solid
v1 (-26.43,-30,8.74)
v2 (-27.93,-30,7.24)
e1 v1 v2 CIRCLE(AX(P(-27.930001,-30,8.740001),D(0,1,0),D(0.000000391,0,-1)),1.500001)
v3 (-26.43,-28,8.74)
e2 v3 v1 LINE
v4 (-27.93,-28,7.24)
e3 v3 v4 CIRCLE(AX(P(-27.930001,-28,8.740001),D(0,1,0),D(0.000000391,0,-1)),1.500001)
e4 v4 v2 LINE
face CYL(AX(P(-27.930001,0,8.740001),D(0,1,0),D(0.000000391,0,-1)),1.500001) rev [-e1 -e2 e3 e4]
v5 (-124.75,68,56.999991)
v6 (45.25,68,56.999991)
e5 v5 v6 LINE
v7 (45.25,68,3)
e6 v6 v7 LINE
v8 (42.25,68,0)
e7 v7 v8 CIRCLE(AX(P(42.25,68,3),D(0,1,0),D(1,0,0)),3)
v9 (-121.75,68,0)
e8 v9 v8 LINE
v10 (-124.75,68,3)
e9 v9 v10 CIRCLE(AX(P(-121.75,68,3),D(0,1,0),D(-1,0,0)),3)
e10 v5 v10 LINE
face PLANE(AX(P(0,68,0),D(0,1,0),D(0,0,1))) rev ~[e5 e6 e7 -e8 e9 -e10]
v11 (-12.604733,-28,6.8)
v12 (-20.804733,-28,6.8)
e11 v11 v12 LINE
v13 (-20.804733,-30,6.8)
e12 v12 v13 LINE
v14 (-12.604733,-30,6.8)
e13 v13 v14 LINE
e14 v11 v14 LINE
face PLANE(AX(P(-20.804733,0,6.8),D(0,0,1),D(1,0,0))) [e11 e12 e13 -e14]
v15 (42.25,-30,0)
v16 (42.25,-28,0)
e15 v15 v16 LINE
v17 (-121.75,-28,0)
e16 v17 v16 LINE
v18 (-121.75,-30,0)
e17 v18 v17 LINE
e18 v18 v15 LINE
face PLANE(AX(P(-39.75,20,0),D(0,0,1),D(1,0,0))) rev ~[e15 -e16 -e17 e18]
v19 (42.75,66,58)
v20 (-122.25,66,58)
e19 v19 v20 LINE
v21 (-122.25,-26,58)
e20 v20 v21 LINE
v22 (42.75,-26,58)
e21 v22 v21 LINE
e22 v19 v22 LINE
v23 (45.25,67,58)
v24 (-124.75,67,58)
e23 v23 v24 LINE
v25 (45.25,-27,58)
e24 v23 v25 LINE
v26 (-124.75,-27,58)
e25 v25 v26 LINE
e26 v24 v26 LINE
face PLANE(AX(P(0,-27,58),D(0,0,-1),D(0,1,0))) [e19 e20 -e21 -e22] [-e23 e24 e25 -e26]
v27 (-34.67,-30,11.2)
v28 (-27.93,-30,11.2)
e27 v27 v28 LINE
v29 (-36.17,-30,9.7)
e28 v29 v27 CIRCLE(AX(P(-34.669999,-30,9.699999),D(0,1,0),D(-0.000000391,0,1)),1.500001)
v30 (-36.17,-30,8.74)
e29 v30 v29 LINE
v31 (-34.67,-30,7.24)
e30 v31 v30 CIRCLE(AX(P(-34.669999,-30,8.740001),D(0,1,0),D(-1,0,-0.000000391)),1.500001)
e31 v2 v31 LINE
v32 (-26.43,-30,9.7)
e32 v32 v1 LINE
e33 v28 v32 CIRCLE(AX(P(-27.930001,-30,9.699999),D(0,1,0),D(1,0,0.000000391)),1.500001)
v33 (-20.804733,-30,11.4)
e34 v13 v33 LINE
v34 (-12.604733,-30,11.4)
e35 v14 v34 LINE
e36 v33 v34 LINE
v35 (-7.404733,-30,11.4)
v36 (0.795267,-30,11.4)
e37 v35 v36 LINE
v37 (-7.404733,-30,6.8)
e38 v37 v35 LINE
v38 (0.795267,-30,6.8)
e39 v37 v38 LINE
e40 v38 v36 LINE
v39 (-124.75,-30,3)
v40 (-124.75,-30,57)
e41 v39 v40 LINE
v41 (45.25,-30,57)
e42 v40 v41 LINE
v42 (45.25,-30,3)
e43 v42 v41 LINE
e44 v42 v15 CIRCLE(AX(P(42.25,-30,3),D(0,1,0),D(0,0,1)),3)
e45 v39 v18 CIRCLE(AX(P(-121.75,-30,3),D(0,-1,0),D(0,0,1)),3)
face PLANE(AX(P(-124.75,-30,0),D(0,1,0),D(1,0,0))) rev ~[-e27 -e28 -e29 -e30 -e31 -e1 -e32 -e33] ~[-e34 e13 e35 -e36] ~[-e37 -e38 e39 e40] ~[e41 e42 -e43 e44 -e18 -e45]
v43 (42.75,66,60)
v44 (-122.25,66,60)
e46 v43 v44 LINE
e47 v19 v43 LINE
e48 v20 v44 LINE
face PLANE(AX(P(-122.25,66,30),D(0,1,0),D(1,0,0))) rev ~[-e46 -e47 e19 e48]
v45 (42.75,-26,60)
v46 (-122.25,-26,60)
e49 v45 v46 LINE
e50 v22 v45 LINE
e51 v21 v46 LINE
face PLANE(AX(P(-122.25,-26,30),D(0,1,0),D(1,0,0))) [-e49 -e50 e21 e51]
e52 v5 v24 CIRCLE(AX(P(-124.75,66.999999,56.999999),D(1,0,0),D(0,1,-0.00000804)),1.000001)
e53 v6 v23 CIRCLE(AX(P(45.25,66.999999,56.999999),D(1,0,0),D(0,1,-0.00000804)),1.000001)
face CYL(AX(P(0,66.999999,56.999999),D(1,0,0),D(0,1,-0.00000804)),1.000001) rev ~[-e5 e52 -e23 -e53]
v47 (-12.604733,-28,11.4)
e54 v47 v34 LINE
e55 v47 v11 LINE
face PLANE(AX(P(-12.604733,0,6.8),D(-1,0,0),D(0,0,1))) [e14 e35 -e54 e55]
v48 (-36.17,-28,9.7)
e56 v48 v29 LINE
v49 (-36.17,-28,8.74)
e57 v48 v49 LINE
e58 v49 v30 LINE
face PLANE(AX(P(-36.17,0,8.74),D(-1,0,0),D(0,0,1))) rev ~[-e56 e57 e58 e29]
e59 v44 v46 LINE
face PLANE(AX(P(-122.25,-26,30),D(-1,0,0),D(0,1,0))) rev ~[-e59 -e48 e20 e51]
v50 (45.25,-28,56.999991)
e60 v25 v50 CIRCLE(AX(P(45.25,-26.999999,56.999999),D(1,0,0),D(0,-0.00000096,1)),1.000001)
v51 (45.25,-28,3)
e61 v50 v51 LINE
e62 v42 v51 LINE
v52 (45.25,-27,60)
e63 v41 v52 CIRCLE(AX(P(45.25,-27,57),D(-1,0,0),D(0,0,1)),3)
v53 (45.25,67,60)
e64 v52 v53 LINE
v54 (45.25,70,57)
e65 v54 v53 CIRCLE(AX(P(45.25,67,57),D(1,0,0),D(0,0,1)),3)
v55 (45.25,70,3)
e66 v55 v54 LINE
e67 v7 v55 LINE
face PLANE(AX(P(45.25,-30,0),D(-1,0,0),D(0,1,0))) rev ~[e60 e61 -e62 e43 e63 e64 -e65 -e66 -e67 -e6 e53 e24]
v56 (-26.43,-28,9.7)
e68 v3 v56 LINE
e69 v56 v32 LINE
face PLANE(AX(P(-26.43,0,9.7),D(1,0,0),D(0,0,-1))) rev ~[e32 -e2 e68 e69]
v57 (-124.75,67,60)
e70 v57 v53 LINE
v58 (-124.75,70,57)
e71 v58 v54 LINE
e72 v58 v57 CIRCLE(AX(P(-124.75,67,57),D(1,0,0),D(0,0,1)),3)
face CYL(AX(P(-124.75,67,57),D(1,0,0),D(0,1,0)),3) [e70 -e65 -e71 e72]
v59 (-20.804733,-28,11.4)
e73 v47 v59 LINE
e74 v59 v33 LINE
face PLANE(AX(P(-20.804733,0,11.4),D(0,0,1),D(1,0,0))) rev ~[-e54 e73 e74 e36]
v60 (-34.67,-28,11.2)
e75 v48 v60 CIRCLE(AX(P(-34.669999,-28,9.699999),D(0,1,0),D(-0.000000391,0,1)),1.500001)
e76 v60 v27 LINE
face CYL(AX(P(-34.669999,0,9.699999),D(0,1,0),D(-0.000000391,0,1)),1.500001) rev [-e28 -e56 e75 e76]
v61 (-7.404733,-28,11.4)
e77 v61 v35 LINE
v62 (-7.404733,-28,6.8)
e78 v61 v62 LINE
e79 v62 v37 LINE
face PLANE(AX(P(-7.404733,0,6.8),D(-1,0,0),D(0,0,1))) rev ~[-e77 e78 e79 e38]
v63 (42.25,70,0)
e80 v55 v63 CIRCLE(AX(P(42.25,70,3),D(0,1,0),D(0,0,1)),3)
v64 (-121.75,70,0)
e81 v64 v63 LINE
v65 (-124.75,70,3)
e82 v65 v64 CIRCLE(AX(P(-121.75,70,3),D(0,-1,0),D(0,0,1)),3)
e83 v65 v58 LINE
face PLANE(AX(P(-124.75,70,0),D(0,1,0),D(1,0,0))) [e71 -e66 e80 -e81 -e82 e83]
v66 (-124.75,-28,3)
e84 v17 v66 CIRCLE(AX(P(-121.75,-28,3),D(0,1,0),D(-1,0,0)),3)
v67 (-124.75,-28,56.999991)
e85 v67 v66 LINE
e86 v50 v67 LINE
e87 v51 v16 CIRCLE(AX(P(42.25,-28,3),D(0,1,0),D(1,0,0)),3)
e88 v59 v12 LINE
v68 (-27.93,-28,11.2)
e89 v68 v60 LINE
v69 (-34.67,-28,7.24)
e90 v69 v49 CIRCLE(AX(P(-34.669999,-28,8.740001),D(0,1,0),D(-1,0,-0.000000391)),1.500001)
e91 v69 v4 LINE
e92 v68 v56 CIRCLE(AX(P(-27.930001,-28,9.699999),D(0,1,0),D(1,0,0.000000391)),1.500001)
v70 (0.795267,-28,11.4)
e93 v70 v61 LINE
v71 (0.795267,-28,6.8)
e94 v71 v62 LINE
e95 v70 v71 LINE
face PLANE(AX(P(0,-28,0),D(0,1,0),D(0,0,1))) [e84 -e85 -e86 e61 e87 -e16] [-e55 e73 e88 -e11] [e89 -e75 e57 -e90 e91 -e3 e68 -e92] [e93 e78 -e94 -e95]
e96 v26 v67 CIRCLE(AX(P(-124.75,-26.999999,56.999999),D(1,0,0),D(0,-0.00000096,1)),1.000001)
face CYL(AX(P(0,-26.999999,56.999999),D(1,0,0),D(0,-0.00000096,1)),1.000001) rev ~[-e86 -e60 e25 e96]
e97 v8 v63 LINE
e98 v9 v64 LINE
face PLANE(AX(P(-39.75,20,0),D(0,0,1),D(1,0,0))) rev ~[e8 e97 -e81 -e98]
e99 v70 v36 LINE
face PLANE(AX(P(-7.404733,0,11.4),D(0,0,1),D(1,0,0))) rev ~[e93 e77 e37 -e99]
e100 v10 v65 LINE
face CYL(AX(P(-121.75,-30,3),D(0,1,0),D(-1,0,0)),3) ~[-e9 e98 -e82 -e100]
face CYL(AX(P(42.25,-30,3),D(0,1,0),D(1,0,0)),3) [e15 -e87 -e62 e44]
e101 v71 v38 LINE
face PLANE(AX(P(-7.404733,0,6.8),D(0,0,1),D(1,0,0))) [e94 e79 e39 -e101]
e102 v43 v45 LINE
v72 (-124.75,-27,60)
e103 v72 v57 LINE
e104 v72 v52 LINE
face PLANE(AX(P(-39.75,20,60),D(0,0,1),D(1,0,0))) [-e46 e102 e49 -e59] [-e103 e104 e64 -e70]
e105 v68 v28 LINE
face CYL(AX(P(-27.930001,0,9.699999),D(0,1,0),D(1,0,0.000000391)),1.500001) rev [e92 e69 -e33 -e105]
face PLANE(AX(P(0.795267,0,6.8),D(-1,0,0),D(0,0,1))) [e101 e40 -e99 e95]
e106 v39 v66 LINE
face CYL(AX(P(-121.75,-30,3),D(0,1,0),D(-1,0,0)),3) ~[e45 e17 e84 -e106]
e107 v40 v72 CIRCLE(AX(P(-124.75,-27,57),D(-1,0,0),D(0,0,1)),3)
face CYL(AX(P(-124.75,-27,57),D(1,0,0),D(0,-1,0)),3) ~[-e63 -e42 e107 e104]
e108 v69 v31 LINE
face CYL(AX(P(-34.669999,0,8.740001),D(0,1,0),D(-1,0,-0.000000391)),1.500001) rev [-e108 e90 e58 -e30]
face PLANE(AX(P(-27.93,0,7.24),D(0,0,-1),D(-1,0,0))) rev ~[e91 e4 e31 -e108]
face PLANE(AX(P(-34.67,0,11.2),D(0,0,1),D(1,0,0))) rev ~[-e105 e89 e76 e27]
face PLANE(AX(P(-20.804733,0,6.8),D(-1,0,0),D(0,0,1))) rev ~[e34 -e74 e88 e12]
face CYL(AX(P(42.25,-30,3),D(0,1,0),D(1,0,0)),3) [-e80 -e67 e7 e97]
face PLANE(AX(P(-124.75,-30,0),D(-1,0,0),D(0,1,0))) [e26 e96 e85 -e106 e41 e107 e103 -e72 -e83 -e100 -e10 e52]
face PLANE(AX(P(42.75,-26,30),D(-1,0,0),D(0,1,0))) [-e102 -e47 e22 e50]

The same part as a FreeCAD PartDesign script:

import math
import FreeCAD as App
import Part
import Sketcher
from FreeCAD import Vector


def edges_at(feature, points):
    """Names of the edges that pass closest to the given points."""
    edges = feature.Shape.Edges
    near = lambda p: min(range(len(edges)), key=lambda i: edges[i].distToShape(Part.Vertex(*p))[0])
    return sorted({f"Edge{near(p) + 1}" for p in points})

doc = App.newDocument("Part")
body = doc.addObject("PartDesign::Body", "Body")

sketch1 = body.newObject("Sketcher::SketchObject", "Sketch")
sketch1.AttachmentSupport = (doc.getObject("YZ_Plane"), [""])
sketch1.MapMode = "FlatFace"
sketch1.addGeometry([
    Part.LineSegment(Vector(-28, 57, 0), Vector(-28, 0, 0)),
    Part.LineSegment(Vector(-28, 0, 0), Vector(68, 0, 0)),
    Part.LineSegment(Vector(68, 0, 0), Vector(68, 57, 0)),
    Part.ArcOfCircle(Part.Circle(Vector(67, 57, 0), Vector(0, 0, 1), 1), math.radians(0), math.radians(90)),
    Part.LineSegment(Vector(67, 58, 0), Vector(-27, 58, 0)),
    Part.ArcOfCircle(Part.Circle(Vector(-27, 57, 0), Vector(0, 0, 1), 1), math.radians(90), math.radians(180)),
], False)
sketch1.addConstraint([
    Sketcher.Constraint("Coincident", 0, 2, 1, 1),
    Sketcher.Constraint("Coincident", 1, 2, 2, 1),
    Sketcher.Constraint("Coincident", 2, 2, 3, 1),
    Sketcher.Constraint("Tangent", 3, 2, 4, 1),
    Sketcher.Constraint("Tangent", 4, 2, 5, 1),
    Sketcher.Constraint("Coincident", 5, 2, 0, 1),
    Sketcher.Constraint("Vertical", 0),
    Sketcher.Constraint("Horizontal", 1),
    Sketcher.Constraint("Vertical", 2),
    Sketcher.Constraint("Horizontal", 4),
    Sketcher.Constraint("Equal", 3, 5),
    Sketcher.Constraint("PointOnObject", 0, 2, -1),
    Sketcher.Constraint("Horizontal", 2, 2, 5, 2),
    Sketcher.Constraint("Radius", 3, 1.000001),
    Sketcher.Constraint("DistanceX", 1, 1, 1, 2, 96.0),
    Sketcher.Constraint("DistanceX", -1, 1, 3, 3, 66.999999),
    Sketcher.Constraint("DistanceY", -1, 1, 3, 3, 56.999999),
    Sketcher.Constraint("DistanceY", 0, 2, 0, 1, 56.999991),
])
pad1 = body.newObject("PartDesign::Pad", "Pad")
pad1.Profile = sketch1
pad1.Length = 500
pad1.Midplane = True
body2 = doc.addObject("PartDesign::Body", "Body001")

sketch2 = body2.newObject("Sketcher::SketchObject", "Sketch001")
sketch2.AttachmentSupport = (doc.getObject("XY_Plane001"), [""])
sketch2.MapMode = "FlatFace"
sketch2.addGeometry([
    Part.LineSegment(Vector(-125, 70, 0), Vector(-125, -30, 0)),
    Part.LineSegment(Vector(-125, -30, 0), Vector(45, -30, 0)),
    Part.LineSegment(Vector(45, -30, 0), Vector(45, 70, 0)),
    Part.LineSegment(Vector(45, 70, 0), Vector(-125, 70, 0)),
], False)
sketch2.addConstraint([
    Sketcher.Constraint("Coincident", 0, 2, 1, 1),
    Sketcher.Constraint("Coincident", 1, 2, 2, 1),
    Sketcher.Constraint("Coincident", 2, 2, 3, 1),
    Sketcher.Constraint("Coincident", 3, 2, 0, 1),
    Sketcher.Constraint("Vertical", 0),
    Sketcher.Constraint("Horizontal", 1),
    Sketcher.Constraint("Vertical", 2),
    Sketcher.Constraint("Horizontal", 3),
    Sketcher.Constraint("DistanceX", 1, 1, 1, 2, 170.0),
    Sketcher.Constraint("DistanceY", 0, 2, 0, 1, 100.0),
    Sketcher.Constraint("DistanceY", 0, 2, -1, 1, 30.0),
    Sketcher.Constraint("DistanceX", 0, 2, -1, 1, 124.75),
])
pad2 = body2.newObject("PartDesign::Pad", "Pad001")
pad2.Profile = sketch2
pad2.Length = 60
doc.recompute()

fillet = body2.newObject("PartDesign::Fillet", "Fillet")
fillet.Base = (pad2, edges_at(pad2, [
    (45.25, 20, 0),
    (-39.75, -30, 60),
    (-39.75, 70, 60),
    (-124.75, 20, 0),
]))
fillet.Radius = 3

sketch3 = body2.newObject("Sketcher::SketchObject", "Sketch002")
sketch3.AttachmentSupport = (doc.getObject("YZ_Plane001"), [""])
sketch3.MapMode = "FlatFace"
sketch3.addGeometry([
    Part.LineSegment(Vector(-26, 22, 0), Vector(-26, 8, 0)),
    Part.LineSegment(Vector(-26, 8, 0), Vector(-9, 8, 0)),
    Part.LineSegment(Vector(-9, 8, 0), Vector(-9, 22, 0)),
    Part.LineSegment(Vector(-9, 22, 0), Vector(-26, 22, 0)),
    Part.LineSegment(Vector(-7, 24, 0), Vector(-7, 8, 0)),
    Part.LineSegment(Vector(-7, 8, 0), Vector(9, 8, 0)),
    Part.LineSegment(Vector(9, 8, 0), Vector(9, 24, 0)),
    Part.LineSegment(Vector(9, 24, 0), Vector(-7, 24, 0)),
    Part.LineSegment(Vector(11, 24, 0), Vector(11, 8, 0)),
    Part.LineSegment(Vector(11, 8, 0), Vector(27, 8, 0)),
    Part.LineSegment(Vector(27, 8, 0), Vector(27, 24, 0)),
    Part.LineSegment(Vector(27, 24, 0), Vector(11, 24, 0)),
], False)
sketch3.addConstraint([
    Sketcher.Constraint("Coincident", 0, 2, 1, 1),
    Sketcher.Constraint("Coincident", 1, 2, 2, 1),
    Sketcher.Constraint("Coincident", 2, 2, 3, 1),
    Sketcher.Constraint("Coincident", 3, 2, 0, 1),
    Sketcher.Constraint("Coincident", 4, 2, 5, 1),
    Sketcher.Constraint("Coincident", 5, 2, 6, 1),
    Sketcher.Constraint("Coincident", 6, 2, 7, 1),
    Sketcher.Constraint("Coincident", 7, 2, 4, 1),
    Sketcher.Constraint("Coincident", 8, 2, 9, 1),
    Sketcher.Constraint("Coincident", 9, 2, 10, 1),
    Sketcher.Constraint("Coincident", 10, 2, 11, 1),
    Sketcher.Constraint("Coincident", 11, 2, 8, 1),
    Sketcher.Constraint("Vertical", 0),
    Sketcher.Constraint("Horizontal", 1),
    Sketcher.Constraint("Vertical", 2),
    Sketcher.Constraint("Horizontal", 3),
    Sketcher.Constraint("Vertical", 4),
    Sketcher.Constraint("Horizontal", 5),
    Sketcher.Constraint("Vertical", 6),
    Sketcher.Constraint("Horizontal", 7),
    Sketcher.Constraint("Vertical", 8),
    Sketcher.Constraint("Horizontal", 9),
    Sketcher.Constraint("Vertical", 10),
    Sketcher.Constraint("Horizontal", 11),
    Sketcher.Constraint("Horizontal", 5, 2, 8, 2),
    Sketcher.Constraint("Horizontal", 7, 2, 10, 2),
    Sketcher.Constraint("Equal", 7, 9),
    Sketcher.Constraint("DistanceX", 1, 1, 1, 2, 17.0),
    Sketcher.Constraint("DistanceX", 5, 1, 5, 2, 15.6),
    Sketcher.Constraint("DistanceY", 0, 2, 0, 1, 14.3),
    Sketcher.Constraint("DistanceY", 4, 2, 4, 1, 16.5),
    Sketcher.Constraint("DistanceX", 0, 2, -1, 1, 26.3),
    Sketcher.Constraint("DistanceY", -1, 1, 0, 2, 7.6),
    Sketcher.Constraint("DistanceX", -1, 1, 8, 2, 11.2),
    Sketcher.Constraint("DistanceX", 4, 2, -1, 1, 6.75),
    Sketcher.Constraint("DistanceY", -1, 1, 4, 2, 7.95),
])
pocket1 = body2.newObject("PartDesign::Pocket", "Pocket")
pocket1.Profile = sketch3
pocket1.Type = "ThroughAll"
pocket1.Reversed = True

sketch4 = body2.newObject("Sketcher::SketchObject", "Sketch003")
sketch4.AttachmentSupport = (doc.getObject("XZ_Plane001"), [""])
sketch4.MapMode = "FlatFace"
sketch4.addGeometry([
    Part.ArcOfCircle(Part.Circle(Vector(-34.7, 9.7, 0), Vector(0, 0, 1), 1.5), math.radians(90), math.radians(180)),
    Part.LineSegment(Vector(-36.2, 9.7, 0), Vector(-36.2, 8.7, 0)),
    Part.ArcOfCircle(Part.Circle(Vector(-34.7, 8.7, 0), Vector(0, 0, 1), 1.5), math.radians(-180), math.radians(-90)),
    Part.LineSegment(Vector(-34.7, 7.2, 0), Vector(-27.9, 7.2, 0)),
    Part.ArcOfCircle(Part.Circle(Vector(-27.9, 8.7, 0), Vector(0, 0, 1), 1.5), math.radians(-90), math.radians(0)),
    Part.LineSegment(Vector(-26.4, 8.7, 0), Vector(-26.4, 9.7, 0)),
    Part.ArcOfCircle(Part.Circle(Vector(-27.9, 9.7, 0), Vector(0, 0, 1), 1.5), math.radians(0), math.radians(90)),
    Part.LineSegment(Vector(-27.9, 11.2, 0), Vector(-34.7, 11.2, 0)),
    Part.LineSegment(Vector(-20.8, 11.4, 0), Vector(-20.8, 6.8, 0)),
    Part.LineSegment(Vector(-20.8, 6.8, 0), Vector(-12.6, 6.8, 0)),
    Part.LineSegment(Vector(-12.6, 6.8, 0), Vector(-12.6, 11.4, 0)),
    Part.LineSegment(Vector(-12.6, 11.4, 0), Vector(-20.8, 11.4, 0)),
    Part.LineSegment(Vector(-7.4, 11.4, 0), Vector(-7.4, 6.8, 0)),
    Part.LineSegment(Vector(-7.4, 6.8, 0), Vector(0.8, 6.8, 0)),
    Part.LineSegment(Vector(0.8, 6.8, 0), Vector(0.8, 11.4, 0)),
    Part.LineSegment(Vector(0.8, 11.4, 0), Vector(-7.4, 11.4, 0)),
], False)
sketch4.addConstraint([
    Sketcher.Constraint("Tangent", 0, 2, 1, 1),
    Sketcher.Constraint("Tangent", 1, 2, 2, 1),
    Sketcher.Constraint("Tangent", 2, 2, 3, 1),
    Sketcher.Constraint("Tangent", 3, 2, 4, 1),
    Sketcher.Constraint("Tangent", 4, 2, 5, 1),
    Sketcher.Constraint("Tangent", 5, 2, 6, 1),
    Sketcher.Constraint("Tangent", 6, 2, 7, 1),
    Sketcher.Constraint("Tangent", 7, 2, 0, 1),
    Sketcher.Constraint("Coincident", 8, 2, 9, 1),
    Sketcher.Constraint("Coincident", 9, 2, 10, 1),
    Sketcher.Constraint("Coincident", 10, 2, 11, 1),
    Sketcher.Constraint("Coincident", 11, 2, 8, 1),
    Sketcher.Constraint("Coincident", 12, 2, 13, 1),
    Sketcher.Constraint("Coincident", 13, 2, 14, 1),
    Sketcher.Constraint("Coincident", 14, 2, 15, 1),
    Sketcher.Constraint("Coincident", 15, 2, 12, 1),
    Sketcher.Constraint("Vertical", 1),
    Sketcher.Constraint("Horizontal", 3),
    Sketcher.Constraint("Vertical", 5),
    Sketcher.Constraint("Horizontal", 7),
    Sketcher.Constraint("Vertical", 8),
    Sketcher.Constraint("Horizontal", 9),
    Sketcher.Constraint("Vertical", 10),
    Sketcher.Constraint("Horizontal", 11),
    Sketcher.Constraint("Vertical", 12),
    Sketcher.Constraint("Horizontal", 13),
    Sketcher.Constraint("Vertical", 14),
    Sketcher.Constraint("Horizontal", 15),
    Sketcher.Constraint("Equal", 0, 2),
    Sketcher.Constraint("Equal", 2, 4),
    Sketcher.Constraint("Equal", 4, 6),
    Sketcher.Constraint("Horizontal", 9, 2, 12, 2),
    Sketcher.Constraint("Horizontal", 11, 2, 14, 2),
    Sketcher.Constraint("Equal", 11, 13),
    Sketcher.Constraint("Radius", 0, 1.500001),
    Sketcher.Constraint("DistanceX", 9, 1, 9, 2, 8.2),
    Sketcher.Constraint("DistanceY", 8, 2, 8, 1, 4.6),
    Sketcher.Constraint("DistanceX", 3, 1, 3, 2, 6.74),
    Sketcher.Constraint("DistanceY", 1, 2, 1, 1, 0.96),
    Sketcher.Constraint("DistanceY", -1, 1, 0, 3, 9.699999),
    Sketcher.Constraint("DistanceY", -1, 1, 8, 2, 6.8),
    Sketcher.Constraint("DistanceX", 9, 2, 12, 2, 5.2),
    Sketcher.Constraint("DistanceX", 0, 3, -1, 1, 34.669999),
    Sketcher.Constraint("DistanceX", 8, 2, -1, 1, 20.804733),
])
pocket2 = body2.newObject("PartDesign::Pocket", "Pocket001")
pocket2.Profile = sketch4
pocket2.Type = "ThroughAll"
pocket2.Reversed = True

sketch5 = body2.newObject("Sketcher::SketchObject", "Sketch004")
sketch5.AttachmentSupport = (doc.getObject("XY_Plane001"), [""])
sketch5.MapMode = "FlatFace"
sketch5.AttachmentOffset = App.Placement(Vector(0, 0, 30), App.Rotation())
sketch5.addGeometry([
    Part.LineSegment(Vector(-122, 66, 0), Vector(-122, -26, 0)),
    Part.LineSegment(Vector(-122, -26, 0), Vector(43, -26, 0)),
    Part.LineSegment(Vector(43, -26, 0), Vector(43, 66, 0)),
    Part.LineSegment(Vector(43, 66, 0), Vector(-122, 66, 0)),
], False)
sketch5.addConstraint([
    Sketcher.Constraint("Coincident", 0, 2, 1, 1),
    Sketcher.Constraint("Coincident", 1, 2, 2, 1),
    Sketcher.Constraint("Coincident", 2, 2, 3, 1),
    Sketcher.Constraint("Coincident", 3, 2, 0, 1),
    Sketcher.Constraint("Vertical", 0),
    Sketcher.Constraint("Horizontal", 1),
    Sketcher.Constraint("Vertical", 2),
    Sketcher.Constraint("Horizontal", 3),
    Sketcher.Constraint("DistanceX", 1, 1, 1, 2, 165.0),
    Sketcher.Constraint("DistanceY", 0, 2, 0, 1, 92.0),
    Sketcher.Constraint("DistanceY", 0, 2, -1, 1, 26.0),
    Sketcher.Constraint("DistanceX", 0, 2, -1, 1, 122.25),
])
pocket3 = body2.newObject("PartDesign::Pocket", "Pocket002")
pocket3.Profile = sketch5
pocket3.Length = 500
pocket3.Reversed = True

sketch6 = body2.newObject("Sketcher::SketchObject", "Sketch005")
sketch6.AttachmentSupport = (doc.getObject("XY_Plane001"), [""])
sketch6.MapMode = "FlatFace"
sketch6.addGeometry([
    Part.Circle(Vector(-39, 24.5, 0), Vector(0, 0, 1), 2.2),
    Part.Circle(Vector(19, 24.5, 0), Vector(0, 0, 1), 2.2),
    Part.Circle(Vector(-39, -24.5, 0), Vector(0, 0, 1), 2.2),
    Part.Circle(Vector(19, -24.5, 0), Vector(0, 0, 1), 2.2),
    Part.Circle(Vector(-112, 18.5, 0), Vector(0, 0, 1), 2.2),
    Part.Circle(Vector(-116.8, -23.9, 0), Vector(0, 0, 1), 1.8),
    Part.Circle(Vector(-116.8, 63.9, 0), Vector(0, 0, 1), 1.8),
    Part.Circle(Vector(37.2, 63.9, 0), Vector(0, 0, 1), 1.8),
], False)
sketch6.addConstraint([
    Sketcher.Constraint("Equal", 0, 1),
    Sketcher.Constraint("Equal", 1, 2),
    Sketcher.Constraint("Equal", 2, 3),
    Sketcher.Constraint("Equal", 3, 4),
    Sketcher.Constraint("Equal", 5, 6),
    Sketcher.Constraint("Equal", 6, 7),
    Sketcher.Constraint("Symmetric", 0, 3, 2, 3, -1),
    Sketcher.Constraint("Symmetric", 1, 3, 3, 3, -1),
    Sketcher.Constraint("Horizontal", 0, 3, 1, 3),
    Sketcher.Constraint("Horizontal", 6, 3, 7, 3),
    Sketcher.Constraint("Vertical", 5, 3, 6, 3),
    Sketcher.Constraint("Diameter", 0, 4.4),
    Sketcher.Constraint("Diameter", 5, 3.5),
    Sketcher.Constraint("DistanceX", 0, 3, -1, 1, 39.0),
    Sketcher.Constraint("DistanceX", -1, 1, 1, 3, 19.0),
    Sketcher.Constraint("DistanceX", 4, 3, -1, 1, 112.0),
    Sketcher.Constraint("DistanceY", 2, 3, 0, 3, 49.0),
    Sketcher.Constraint("DistanceY", 4, 3, 0, 3, 6.0),
    Sketcher.Constraint("DistanceX", 6, 3, 7, 3, 154.0),
    Sketcher.Constraint("DistanceY", 5, 3, -1, 1, 23.9),
    Sketcher.Constraint("DistanceY", -1, 1, 6, 3, 63.9),
    Sketcher.Constraint("DistanceX", 5, 3, -1, 1, 116.75),
])
pocket4 = body2.newObject("PartDesign::Pocket", "Pocket003")
pocket4.Profile = sketch6
pocket4.Length = 5
pocket4.Reversed = True
doc.recompute()

boolean = body2.newObject("PartDesign::Boolean", "Boolean")
boolean.Type = "Cut"
boolean.addObjects([body])

doc.recompute()
